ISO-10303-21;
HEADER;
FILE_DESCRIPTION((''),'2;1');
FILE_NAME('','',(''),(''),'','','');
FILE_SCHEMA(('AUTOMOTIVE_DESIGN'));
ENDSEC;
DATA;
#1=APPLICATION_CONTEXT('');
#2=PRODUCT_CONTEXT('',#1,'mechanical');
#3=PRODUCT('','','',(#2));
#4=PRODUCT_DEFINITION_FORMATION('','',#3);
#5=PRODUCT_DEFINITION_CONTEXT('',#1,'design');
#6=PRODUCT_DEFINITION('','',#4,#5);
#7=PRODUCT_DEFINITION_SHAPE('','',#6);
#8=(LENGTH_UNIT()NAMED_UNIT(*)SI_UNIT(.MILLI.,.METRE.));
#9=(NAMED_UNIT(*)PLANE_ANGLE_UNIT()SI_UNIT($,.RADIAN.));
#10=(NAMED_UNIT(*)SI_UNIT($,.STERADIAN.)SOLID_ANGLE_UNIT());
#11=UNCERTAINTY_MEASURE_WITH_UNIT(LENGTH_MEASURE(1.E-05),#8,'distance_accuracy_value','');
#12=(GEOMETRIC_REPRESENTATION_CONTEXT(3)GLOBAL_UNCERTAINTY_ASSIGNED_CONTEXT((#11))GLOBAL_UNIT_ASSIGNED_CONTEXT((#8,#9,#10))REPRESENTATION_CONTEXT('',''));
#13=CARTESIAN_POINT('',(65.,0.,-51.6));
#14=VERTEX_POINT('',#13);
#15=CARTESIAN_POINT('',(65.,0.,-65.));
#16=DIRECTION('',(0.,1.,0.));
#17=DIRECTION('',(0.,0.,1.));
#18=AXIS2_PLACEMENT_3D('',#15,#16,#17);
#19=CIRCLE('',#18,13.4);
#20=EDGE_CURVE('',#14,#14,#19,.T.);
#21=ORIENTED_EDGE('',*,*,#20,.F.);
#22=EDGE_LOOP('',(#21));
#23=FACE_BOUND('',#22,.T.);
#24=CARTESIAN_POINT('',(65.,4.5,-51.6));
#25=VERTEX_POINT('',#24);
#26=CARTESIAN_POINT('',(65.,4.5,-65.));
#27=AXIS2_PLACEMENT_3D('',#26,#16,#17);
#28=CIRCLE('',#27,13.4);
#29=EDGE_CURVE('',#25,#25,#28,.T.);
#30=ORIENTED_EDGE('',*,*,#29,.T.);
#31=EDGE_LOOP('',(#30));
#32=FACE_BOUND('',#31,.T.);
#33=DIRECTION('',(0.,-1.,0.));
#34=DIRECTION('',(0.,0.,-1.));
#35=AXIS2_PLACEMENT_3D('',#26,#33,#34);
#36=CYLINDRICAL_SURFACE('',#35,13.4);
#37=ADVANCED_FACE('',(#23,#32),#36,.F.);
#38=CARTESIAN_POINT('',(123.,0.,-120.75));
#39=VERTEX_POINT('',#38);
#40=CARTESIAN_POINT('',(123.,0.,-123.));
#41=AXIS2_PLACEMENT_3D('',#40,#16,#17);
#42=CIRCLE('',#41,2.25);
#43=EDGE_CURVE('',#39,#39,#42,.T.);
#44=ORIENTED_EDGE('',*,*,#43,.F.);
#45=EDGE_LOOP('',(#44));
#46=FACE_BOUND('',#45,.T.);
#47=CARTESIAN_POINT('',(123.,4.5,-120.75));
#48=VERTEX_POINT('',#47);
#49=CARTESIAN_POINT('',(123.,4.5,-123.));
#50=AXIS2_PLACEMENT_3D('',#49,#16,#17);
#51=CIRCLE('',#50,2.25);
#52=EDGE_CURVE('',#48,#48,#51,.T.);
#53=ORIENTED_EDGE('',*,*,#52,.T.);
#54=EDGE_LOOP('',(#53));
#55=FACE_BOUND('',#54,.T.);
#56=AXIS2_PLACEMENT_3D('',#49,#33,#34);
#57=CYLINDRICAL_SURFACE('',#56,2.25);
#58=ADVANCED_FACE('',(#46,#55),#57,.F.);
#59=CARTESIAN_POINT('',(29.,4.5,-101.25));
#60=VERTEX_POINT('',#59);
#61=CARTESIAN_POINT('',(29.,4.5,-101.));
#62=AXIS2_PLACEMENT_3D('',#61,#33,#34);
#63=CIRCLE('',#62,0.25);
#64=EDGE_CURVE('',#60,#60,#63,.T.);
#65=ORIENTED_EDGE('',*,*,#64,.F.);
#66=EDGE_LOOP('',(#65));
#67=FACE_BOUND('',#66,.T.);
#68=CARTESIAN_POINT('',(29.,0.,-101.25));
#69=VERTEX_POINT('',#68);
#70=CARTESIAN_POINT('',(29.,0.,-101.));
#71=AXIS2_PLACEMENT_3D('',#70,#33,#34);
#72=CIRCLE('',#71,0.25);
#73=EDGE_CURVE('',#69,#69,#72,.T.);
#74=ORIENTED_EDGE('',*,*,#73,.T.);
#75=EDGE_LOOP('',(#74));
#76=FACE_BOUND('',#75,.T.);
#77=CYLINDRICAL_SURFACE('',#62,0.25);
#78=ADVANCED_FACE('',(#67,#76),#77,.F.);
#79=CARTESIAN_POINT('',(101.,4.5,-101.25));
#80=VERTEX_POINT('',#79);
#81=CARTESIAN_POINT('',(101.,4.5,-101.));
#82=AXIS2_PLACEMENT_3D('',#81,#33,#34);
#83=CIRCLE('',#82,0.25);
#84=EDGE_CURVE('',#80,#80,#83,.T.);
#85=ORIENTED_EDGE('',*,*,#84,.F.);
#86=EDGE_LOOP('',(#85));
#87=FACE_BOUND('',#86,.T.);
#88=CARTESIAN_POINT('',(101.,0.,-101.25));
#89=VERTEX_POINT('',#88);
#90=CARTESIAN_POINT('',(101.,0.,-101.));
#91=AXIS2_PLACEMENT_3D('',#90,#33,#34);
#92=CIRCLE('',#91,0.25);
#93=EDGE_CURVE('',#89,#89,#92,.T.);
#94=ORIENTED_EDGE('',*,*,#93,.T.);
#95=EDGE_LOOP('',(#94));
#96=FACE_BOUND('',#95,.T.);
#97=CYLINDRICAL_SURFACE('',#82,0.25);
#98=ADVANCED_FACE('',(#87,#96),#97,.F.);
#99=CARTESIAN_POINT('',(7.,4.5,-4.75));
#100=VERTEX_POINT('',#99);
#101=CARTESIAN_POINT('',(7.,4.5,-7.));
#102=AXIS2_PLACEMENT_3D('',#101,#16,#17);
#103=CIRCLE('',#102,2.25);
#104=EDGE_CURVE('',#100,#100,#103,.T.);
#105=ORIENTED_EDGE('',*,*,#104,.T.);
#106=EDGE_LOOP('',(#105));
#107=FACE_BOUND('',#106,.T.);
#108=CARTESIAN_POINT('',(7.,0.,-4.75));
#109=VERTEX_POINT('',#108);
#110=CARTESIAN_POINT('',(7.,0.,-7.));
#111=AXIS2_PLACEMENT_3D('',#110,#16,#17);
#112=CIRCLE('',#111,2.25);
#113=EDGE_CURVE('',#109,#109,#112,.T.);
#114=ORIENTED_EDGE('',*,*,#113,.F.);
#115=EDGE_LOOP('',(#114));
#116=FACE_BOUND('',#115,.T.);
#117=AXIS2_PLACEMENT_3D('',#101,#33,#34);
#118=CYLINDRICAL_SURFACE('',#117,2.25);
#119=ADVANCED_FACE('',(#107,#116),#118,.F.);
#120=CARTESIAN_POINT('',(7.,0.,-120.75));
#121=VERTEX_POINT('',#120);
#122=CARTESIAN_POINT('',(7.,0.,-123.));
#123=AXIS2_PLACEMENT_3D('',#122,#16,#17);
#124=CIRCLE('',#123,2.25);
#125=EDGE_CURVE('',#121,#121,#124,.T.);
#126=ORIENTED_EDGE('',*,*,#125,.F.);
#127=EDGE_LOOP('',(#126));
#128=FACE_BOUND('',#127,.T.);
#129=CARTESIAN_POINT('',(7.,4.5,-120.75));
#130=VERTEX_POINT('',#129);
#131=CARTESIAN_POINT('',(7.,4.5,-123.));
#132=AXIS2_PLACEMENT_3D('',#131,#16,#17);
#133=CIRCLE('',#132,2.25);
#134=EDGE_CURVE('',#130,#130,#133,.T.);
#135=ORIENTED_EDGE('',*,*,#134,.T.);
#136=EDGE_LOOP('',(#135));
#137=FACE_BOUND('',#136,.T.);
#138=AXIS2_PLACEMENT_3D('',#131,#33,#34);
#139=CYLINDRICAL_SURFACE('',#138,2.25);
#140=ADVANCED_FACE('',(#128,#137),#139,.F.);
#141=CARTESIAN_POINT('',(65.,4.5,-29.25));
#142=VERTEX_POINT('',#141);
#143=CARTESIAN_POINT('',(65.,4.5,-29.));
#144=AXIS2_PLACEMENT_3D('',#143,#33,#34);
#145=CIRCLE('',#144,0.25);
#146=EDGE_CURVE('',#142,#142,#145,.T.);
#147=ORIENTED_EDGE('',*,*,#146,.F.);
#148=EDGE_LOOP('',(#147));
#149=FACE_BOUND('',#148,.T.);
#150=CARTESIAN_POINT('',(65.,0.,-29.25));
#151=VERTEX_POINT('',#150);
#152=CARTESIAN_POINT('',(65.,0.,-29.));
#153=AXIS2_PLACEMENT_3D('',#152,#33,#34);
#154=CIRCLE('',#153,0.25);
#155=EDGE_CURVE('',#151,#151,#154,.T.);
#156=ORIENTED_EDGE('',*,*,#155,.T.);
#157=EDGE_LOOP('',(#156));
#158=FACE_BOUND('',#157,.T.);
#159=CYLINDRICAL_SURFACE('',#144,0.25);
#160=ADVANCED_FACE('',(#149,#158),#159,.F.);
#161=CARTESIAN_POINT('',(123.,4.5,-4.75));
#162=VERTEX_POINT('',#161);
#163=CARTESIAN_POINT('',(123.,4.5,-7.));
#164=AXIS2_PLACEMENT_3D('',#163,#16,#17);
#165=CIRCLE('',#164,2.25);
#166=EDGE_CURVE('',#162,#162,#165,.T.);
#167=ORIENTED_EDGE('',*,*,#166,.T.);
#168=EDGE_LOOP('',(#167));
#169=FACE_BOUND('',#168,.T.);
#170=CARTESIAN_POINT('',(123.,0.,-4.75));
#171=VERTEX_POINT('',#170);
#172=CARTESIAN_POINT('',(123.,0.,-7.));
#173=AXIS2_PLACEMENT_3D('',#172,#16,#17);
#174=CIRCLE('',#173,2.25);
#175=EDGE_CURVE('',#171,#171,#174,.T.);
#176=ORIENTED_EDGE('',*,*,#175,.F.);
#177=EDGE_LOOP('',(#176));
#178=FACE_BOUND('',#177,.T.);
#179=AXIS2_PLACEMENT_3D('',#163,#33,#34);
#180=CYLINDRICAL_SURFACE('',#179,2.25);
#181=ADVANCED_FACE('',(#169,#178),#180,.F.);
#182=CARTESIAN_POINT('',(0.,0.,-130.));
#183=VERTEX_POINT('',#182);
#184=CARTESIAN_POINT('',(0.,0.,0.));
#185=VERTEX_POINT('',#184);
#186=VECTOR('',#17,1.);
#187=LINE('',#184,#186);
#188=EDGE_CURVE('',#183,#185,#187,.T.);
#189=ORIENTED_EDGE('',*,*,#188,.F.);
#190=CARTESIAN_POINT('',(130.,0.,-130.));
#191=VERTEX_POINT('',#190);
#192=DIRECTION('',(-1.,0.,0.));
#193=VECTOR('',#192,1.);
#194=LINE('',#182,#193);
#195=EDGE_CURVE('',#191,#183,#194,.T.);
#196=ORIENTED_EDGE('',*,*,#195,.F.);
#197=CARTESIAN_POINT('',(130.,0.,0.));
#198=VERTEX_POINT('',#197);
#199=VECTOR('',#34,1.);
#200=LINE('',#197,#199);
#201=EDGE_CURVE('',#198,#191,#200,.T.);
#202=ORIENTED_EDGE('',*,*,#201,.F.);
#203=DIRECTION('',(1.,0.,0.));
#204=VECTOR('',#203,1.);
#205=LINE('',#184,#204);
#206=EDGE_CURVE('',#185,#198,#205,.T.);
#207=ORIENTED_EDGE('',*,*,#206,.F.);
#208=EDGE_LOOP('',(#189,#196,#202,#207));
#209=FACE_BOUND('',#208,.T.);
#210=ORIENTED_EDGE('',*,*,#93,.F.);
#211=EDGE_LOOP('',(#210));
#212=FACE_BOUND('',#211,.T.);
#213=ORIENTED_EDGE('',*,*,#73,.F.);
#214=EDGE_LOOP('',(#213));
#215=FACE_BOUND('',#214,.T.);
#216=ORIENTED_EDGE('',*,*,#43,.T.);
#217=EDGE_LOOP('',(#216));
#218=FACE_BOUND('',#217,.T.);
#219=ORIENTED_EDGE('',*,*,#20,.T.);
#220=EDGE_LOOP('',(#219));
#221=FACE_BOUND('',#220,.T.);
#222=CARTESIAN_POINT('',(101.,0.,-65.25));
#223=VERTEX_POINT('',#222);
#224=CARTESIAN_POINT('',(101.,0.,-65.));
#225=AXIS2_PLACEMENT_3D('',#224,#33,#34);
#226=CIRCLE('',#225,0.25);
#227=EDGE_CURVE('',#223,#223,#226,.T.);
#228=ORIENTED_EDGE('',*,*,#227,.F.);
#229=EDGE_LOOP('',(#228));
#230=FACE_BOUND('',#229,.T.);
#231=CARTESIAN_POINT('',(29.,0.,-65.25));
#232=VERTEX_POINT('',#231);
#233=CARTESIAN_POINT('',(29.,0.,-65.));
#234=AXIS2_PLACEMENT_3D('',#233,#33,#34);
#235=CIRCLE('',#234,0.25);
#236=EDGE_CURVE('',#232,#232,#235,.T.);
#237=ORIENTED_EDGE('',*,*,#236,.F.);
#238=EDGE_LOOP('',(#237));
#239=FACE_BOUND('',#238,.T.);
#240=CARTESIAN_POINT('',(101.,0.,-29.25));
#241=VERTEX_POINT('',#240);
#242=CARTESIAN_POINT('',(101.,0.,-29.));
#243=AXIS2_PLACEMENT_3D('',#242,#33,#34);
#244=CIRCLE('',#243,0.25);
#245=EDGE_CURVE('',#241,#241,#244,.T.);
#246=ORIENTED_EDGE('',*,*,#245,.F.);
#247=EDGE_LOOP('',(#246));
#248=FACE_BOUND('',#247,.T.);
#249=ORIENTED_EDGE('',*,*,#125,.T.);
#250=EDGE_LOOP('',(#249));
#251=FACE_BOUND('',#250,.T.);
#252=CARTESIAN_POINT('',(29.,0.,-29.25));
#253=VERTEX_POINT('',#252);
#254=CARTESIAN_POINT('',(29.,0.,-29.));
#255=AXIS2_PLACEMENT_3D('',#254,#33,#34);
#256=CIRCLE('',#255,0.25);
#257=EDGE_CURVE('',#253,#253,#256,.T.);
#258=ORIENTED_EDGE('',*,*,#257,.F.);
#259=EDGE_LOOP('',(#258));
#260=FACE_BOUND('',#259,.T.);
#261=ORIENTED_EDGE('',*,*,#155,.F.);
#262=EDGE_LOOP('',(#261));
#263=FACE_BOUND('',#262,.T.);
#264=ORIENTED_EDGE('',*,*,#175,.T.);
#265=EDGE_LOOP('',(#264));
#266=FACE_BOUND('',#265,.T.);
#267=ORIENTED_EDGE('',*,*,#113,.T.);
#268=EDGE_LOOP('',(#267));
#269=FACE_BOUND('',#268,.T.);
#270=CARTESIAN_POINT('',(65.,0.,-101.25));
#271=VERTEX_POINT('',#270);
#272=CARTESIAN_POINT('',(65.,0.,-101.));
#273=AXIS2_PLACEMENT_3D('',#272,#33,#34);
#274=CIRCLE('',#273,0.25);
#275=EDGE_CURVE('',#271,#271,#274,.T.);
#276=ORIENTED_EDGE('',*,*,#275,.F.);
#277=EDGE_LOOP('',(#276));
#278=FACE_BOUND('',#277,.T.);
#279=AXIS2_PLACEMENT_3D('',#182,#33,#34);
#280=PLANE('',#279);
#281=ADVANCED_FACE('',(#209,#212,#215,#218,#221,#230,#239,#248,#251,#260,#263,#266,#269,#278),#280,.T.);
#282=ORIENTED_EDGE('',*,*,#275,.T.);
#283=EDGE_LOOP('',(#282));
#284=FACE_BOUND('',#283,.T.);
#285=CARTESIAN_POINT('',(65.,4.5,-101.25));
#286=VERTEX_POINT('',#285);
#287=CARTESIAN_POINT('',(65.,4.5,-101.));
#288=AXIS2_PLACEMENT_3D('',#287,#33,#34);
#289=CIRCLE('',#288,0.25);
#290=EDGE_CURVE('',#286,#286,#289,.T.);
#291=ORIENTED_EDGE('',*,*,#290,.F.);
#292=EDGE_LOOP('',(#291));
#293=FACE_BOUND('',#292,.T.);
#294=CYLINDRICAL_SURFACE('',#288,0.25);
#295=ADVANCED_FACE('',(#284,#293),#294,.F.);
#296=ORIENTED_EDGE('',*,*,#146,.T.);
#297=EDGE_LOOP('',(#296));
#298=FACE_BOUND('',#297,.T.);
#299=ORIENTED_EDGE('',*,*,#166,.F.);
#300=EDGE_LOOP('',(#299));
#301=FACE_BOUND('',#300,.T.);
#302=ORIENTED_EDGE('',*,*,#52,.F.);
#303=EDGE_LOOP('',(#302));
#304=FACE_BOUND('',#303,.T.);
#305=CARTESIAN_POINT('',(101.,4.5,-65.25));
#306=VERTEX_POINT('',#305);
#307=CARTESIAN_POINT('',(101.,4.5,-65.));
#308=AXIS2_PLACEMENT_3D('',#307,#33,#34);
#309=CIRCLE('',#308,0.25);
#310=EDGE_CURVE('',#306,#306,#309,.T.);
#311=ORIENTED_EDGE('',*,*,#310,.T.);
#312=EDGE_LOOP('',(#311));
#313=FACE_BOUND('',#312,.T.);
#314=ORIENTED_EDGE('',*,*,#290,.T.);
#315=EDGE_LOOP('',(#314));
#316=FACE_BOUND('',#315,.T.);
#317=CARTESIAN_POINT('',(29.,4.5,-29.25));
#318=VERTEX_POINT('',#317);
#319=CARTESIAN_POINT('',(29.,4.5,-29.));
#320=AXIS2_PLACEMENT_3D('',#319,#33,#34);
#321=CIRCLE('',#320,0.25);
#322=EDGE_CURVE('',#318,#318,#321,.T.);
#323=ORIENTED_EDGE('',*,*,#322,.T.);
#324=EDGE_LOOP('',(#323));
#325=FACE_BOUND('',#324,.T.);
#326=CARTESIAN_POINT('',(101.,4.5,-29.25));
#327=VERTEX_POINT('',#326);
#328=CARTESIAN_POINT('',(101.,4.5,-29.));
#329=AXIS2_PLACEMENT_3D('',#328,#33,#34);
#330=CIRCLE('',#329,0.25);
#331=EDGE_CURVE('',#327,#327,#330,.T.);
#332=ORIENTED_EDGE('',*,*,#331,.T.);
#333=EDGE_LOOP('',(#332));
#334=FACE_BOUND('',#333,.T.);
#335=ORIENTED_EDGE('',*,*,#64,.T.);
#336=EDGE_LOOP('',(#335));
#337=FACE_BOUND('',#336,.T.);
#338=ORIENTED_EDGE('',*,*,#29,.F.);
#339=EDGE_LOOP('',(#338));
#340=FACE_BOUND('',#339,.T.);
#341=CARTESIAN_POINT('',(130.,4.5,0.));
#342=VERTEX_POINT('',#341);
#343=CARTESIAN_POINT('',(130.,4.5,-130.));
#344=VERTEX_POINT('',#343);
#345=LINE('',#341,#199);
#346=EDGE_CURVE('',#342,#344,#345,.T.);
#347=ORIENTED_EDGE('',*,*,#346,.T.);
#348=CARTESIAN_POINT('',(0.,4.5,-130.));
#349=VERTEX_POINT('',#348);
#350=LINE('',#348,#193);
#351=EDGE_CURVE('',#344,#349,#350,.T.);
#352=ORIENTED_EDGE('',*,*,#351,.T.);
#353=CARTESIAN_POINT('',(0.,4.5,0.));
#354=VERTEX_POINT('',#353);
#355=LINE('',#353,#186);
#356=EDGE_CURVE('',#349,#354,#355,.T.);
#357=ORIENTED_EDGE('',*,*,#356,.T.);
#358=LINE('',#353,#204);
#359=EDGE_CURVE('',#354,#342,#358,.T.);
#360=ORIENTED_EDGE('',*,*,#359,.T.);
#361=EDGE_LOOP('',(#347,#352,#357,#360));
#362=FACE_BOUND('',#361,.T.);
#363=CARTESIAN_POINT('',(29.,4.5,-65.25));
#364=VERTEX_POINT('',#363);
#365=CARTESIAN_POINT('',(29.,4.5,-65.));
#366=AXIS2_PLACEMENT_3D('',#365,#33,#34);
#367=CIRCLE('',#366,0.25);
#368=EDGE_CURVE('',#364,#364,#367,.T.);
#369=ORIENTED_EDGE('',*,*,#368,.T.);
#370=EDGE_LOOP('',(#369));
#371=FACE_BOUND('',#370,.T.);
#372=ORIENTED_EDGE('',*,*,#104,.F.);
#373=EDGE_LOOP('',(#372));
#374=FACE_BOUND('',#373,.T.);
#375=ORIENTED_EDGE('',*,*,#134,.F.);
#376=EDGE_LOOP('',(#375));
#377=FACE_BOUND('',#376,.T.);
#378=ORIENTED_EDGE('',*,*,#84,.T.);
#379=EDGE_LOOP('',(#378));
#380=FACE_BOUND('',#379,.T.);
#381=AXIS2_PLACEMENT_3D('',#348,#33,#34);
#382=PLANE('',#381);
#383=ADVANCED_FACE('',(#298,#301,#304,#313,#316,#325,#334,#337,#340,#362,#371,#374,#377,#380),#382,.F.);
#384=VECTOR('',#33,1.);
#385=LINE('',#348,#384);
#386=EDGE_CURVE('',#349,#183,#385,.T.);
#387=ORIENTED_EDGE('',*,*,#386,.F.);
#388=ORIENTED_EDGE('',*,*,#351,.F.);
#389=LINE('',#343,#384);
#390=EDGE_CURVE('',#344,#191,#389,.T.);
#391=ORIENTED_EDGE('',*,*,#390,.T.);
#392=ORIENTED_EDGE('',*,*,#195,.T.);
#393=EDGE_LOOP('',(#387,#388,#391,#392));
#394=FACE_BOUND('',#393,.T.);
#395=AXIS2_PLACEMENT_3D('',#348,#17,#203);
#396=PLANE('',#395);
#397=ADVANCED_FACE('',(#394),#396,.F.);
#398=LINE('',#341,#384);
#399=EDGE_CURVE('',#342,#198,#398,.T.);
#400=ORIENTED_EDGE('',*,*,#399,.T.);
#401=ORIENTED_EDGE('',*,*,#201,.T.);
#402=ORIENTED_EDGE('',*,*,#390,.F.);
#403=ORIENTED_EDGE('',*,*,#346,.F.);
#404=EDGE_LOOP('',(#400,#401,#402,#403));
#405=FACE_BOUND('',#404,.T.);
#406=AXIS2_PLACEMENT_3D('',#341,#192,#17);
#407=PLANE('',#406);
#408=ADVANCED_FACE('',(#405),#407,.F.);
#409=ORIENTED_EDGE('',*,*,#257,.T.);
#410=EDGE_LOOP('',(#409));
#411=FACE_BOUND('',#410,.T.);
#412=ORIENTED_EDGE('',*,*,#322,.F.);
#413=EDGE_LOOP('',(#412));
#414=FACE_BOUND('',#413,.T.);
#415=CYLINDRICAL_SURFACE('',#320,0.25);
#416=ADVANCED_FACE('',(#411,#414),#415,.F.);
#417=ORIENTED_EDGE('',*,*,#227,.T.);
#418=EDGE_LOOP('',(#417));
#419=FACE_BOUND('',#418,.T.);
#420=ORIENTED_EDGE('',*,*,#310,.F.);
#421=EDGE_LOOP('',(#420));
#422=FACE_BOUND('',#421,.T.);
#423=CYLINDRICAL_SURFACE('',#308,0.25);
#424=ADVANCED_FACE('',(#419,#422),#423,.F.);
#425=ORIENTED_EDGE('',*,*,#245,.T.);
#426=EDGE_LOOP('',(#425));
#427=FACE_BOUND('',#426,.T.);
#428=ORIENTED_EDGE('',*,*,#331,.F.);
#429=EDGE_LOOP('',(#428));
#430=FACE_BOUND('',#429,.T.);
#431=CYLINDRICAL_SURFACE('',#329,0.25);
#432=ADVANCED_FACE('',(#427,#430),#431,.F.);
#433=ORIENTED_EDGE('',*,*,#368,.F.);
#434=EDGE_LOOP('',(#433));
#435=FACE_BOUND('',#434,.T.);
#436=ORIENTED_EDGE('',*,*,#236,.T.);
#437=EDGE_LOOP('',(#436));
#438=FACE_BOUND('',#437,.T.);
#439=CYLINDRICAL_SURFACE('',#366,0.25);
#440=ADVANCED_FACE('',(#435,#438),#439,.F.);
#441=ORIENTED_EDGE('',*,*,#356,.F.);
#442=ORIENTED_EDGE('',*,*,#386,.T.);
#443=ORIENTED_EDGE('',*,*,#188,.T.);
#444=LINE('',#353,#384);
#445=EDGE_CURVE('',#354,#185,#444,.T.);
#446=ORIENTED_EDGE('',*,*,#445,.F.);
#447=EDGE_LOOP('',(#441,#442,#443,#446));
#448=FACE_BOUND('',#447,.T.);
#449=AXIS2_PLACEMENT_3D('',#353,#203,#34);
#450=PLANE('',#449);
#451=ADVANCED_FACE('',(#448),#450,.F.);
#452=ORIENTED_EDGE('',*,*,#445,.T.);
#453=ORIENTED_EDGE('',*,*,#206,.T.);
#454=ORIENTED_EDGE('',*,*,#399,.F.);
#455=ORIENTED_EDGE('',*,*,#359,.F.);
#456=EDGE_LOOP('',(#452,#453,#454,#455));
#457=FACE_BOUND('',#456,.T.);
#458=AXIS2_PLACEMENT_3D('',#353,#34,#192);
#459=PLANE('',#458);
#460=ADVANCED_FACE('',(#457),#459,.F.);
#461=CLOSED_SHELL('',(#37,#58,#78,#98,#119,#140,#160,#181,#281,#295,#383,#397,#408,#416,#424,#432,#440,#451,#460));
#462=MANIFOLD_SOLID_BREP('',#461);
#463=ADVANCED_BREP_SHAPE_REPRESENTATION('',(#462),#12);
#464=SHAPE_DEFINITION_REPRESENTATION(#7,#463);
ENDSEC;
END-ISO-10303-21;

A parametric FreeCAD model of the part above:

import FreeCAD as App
import Part
import Sketcher

V = App.Vector
Q = App.Units.Quantity


def add_polygon(sketch, points):
    """Adds a closed chain of lines whose ends are joined by coincident constraints."""
    first, n = sketch.GeometryCount, len(points)
    for a, b in zip(points, points[1:] + points[:1]):
        sketch.addGeometry(Part.LineSegment(App.Vector(*a, 0), App.Vector(*b, 0)), False)
    for i in range(n):
        sketch.addConstraint(Sketcher.Constraint("Coincident", first + i, 2, first + (i + 1) % n, 1))

doc = App.newDocument("Part")
body = doc.addObject("PartDesign::Body", "Body")

sketch1 = body.newObject("Sketcher::SketchObject", "Sketch")
sketch1.AttachmentSupport = (doc.getObject("XZ_Plane"), [""])
sketch1.MapMode = "FlatFace"
add_polygon(sketch1, [(0, -130), (0, 0), (130, 0), (130, -130)])
sketch1.addGeometry(Part.Circle(V(7, -7, 0), V(0, 0, 1), 2.2), False)
sketch1.addGeometry(Part.Circle(V(123, -7, 0), V(0, 0, 1), 2.2), False)
sketch1.addGeometry(Part.Circle(V(7, -123, 0), V(0, 0, 1), 2.2), False)
sketch1.addGeometry(Part.Circle(V(65, -65, 0), V(0, 0, 1), 13.4), False)
sketch1.addGeometry(Part.Circle(V(123, -123, 0), V(0, 0, 1), 2.2), False)
sketch1.addConstraint([
    Sketcher.Constraint("Vertical", 0),
    Sketcher.Constraint("Horizontal", 1),
    Sketcher.Constraint("Vertical", 2),
    Sketcher.Constraint("Horizontal", 3),
    Sketcher.Constraint("Coincident", 0, 2, -1, 1),
    Sketcher.Constraint("Equal", 4, 5),
    Sketcher.Constraint("Equal", 5, 6),
    Sketcher.Constraint("Equal", 6, 8),
    Sketcher.Constraint("Horizontal", 4, 3, 5, 3),
    Sketcher.Constraint("Horizontal", 6, 3, 8, 3),
    Sketcher.Constraint("Vertical", 4, 3, 6, 3),
    Sketcher.Constraint("Vertical", 5, 3, 8, 3),
    Sketcher.Constraint("Equal", 3, 0),
    Sketcher.Constraint("Diameter", 4, Q("4.5 mm")),
    Sketcher.Constraint("Diameter", 7, Q("26.8 mm")),
    Sketcher.Constraint("DistanceX", 1, 1, 1, 2, Q("130 mm")),
    Sketcher.Constraint("DistanceX", -1, 1, 4, 3, Q("7 mm")),
    Sketcher.Constraint("DistanceY", 4, 3, -1, 1, Q("7 mm")),
    Sketcher.Constraint("DistanceX", -1, 1, 5, 3, Q("123 mm")),
    Sketcher.Constraint("DistanceY", 6, 3, -1, 1, Q("123 mm")),
    Sketcher.Constraint("DistanceX", -1, 1, 7, 3, Q("65 mm")),
    Sketcher.Constraint("DistanceY", 7, 3, -1, 1, Q("65 mm")),
])
pad1 = body.newObject("PartDesign::Pad", "Pad")
pad1.Profile = sketch1
pad1.Length = 4.5
pad1.Reversed = True

sketch2 = body.newObject("Sketcher::SketchObject", "Sketch001")
sketch2.AttachmentSupport = (doc.getObject("XZ_Plane"), [""])
sketch2.MapMode = "FlatFace"
sketch2.addGeometry([
    Part.Circle(V(29, -65, 0), V(0, 0, 1), 0.25),
    Part.Circle(V(65, -29, 0), V(0, 0, 1), 0.25),
    Part.Circle(V(101, -65, 0), V(0, 0, 1), 0.25),
    Part.Circle(V(65, -101, 0), V(0, 0, 1), 0.25),
    Part.Circle(V(101, -29, 0), V(0, 0, 1), 0.25),
    Part.Circle(V(29, -29, 0), V(0, 0, 1), 0.25),
    Part.Circle(V(101, -101, 0), V(0, 0, 1), 0.25),
    Part.Circle(V(29, -101, 0), V(0, 0, 1), 0.25),
], False)
sketch2.addConstraint([
    Sketcher.Constraint("Equal", 0, 1),
    Sketcher.Constraint("Equal", 1, 2),
    Sketcher.Constraint("Equal", 2, 3),
    Sketcher.Constraint("Equal", 3, 4),
    Sketcher.Constraint("Equal", 4, 5),
    Sketcher.Constraint("Equal", 5, 6),
    Sketcher.Constraint("Equal", 6, 7),
    Sketcher.Constraint("Horizontal", 0, 3, 2, 3),
    Sketcher.Constraint("Horizontal", 1, 3, 4, 3),
    Sketcher.Constraint("Horizontal", 4, 3, 5, 3),
    Sketcher.Constraint("Horizontal", 3, 3, 6, 3),
    Sketcher.Constraint("Horizontal", 6, 3, 7, 3),
    Sketcher.Constraint("Vertical", 1, 3, 3, 3),
    Sketcher.Constraint("Vertical", 2, 3, 4, 3),
    Sketcher.Constraint("Vertical", 0, 3, 5, 3),
    Sketcher.Constraint("Vertical", 4, 3, 6, 3),
    Sketcher.Constraint("Vertical", 5, 3, 7, 3),
    Sketcher.Constraint("Diameter", 0, Q("0.5 mm")),
    Sketcher.Constraint("DistanceX", -1, 1, 0, 3, Q("29 mm")),
    Sketcher.Constraint("DistanceY", 0, 3, -1, 1, Q("65 mm")),
    Sketcher.Constraint("DistanceX", -1, 1, 1, 3, Q("65 mm")),
    Sketcher.Constraint("DistanceY", 1, 3, -1, 1, Q("29 mm")),
    Sketcher.Constraint("DistanceX", -1, 1, 2, 3, Q("101 mm")),
    Sketcher.Constraint("DistanceY", 3, 3, -1, 1, Q("101 mm")),
])
pocket1 = body.newObject("PartDesign::Pocket", "Pocket")
pocket1.Profile = sketch2
pocket1.Type = "ThroughAll"

doc.recompute()
